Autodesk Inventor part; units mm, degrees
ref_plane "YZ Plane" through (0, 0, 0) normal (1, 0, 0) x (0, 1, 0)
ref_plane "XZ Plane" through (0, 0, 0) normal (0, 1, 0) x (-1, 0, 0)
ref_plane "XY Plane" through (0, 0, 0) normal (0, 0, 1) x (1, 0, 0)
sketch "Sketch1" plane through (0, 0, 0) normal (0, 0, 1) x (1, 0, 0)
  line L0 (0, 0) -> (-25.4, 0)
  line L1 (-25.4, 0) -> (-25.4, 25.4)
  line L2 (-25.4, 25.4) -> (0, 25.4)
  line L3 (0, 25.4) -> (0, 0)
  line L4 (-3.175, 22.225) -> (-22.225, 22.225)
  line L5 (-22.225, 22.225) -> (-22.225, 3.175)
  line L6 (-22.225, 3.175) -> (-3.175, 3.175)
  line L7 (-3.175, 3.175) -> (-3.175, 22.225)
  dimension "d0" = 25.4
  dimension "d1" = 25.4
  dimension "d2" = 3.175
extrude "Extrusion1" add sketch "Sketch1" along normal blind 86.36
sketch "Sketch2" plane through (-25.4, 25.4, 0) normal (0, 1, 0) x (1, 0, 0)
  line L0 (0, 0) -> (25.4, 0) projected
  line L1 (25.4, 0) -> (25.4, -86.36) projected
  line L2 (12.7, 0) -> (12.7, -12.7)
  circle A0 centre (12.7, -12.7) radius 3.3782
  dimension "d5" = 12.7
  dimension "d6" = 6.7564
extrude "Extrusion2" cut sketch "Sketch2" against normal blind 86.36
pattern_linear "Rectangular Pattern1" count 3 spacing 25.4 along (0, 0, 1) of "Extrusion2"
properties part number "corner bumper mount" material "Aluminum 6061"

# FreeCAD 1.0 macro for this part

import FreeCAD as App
import Part
import Sketcher

V = App.Vector
Q = App.Units.Quantity

doc = App.newDocument("Part")
body = doc.addObject("PartDesign::Body", "Body")

# Sketch on XY plane
sketch1 = doc.addObject("Sketcher::SketchObject", "Sketch")
body.addObject(sketch1)
sketch1.AttachmentSupport = (doc.XY_Plane, [""])
sketch1.MapMode = "FlatFace"
sketch1.addGeometry(Part.LineSegment(V(-25.4, 0, 0), V(0, 0, 0)), False)
sketch1.addGeometry(Part.LineSegment(V(0, 0, 0), V(0, 25.4, 0)), False)
sketch1.addGeometry(Part.LineSegment(V(0, 25.4, 0), V(-25.4, 25.4, 0)), False)
sketch1.addGeometry(Part.LineSegment(V(-25.4, 25.4, 0), V(-25.4, 0, 0)), False)
sketch1.addGeometry(Part.LineSegment(V(-22.225, 22.225, 0), V(-3.175, 22.225, 0)), False)
sketch1.addGeometry(Part.LineSegment(V(-3.175, 22.225, 0), V(-3.175, 3.175, 0)), False)
sketch1.addGeometry(Part.LineSegment(V(-3.175, 3.175, 0), V(-22.225, 3.175, 0)), False)
sketch1.addGeometry(Part.LineSegment(V(-22.225, 3.175, 0), V(-22.225, 22.225, 0)), False)
sketch1.addConstraint(Sketcher.Constraint("Coincident", 0, 2, 1, 1))
sketch1.addConstraint(Sketcher.Constraint("Coincident", 1, 2, 2, 1))
sketch1.addConstraint(Sketcher.Constraint("Coincident", 2, 2, 3, 1))
sketch1.addConstraint(Sketcher.Constraint("Coincident", 3, 2, 0, 1))
sketch1.addConstraint(Sketcher.Constraint("Coincident", 4, 2, 5, 1))
sketch1.addConstraint(Sketcher.Constraint("Coincident", 5, 2, 6, 1))
sketch1.addConstraint(Sketcher.Constraint("Coincident", 6, 2, 7, 1))
sketch1.addConstraint(Sketcher.Constraint("Coincident", 7, 2, 4, 1))
sketch1.addConstraint(Sketcher.Constraint("Horizontal", 0))
sketch1.addConstraint(Sketcher.Constraint("Vertical", 1))
sketch1.addConstraint(Sketcher.Constraint("Horizontal", 2))
sketch1.addConstraint(Sketcher.Constraint("Vertical", 3))
sketch1.addConstraint(Sketcher.Constraint("Horizontal", 4))
sketch1.addConstraint(Sketcher.Constraint("Vertical", 5))
sketch1.addConstraint(Sketcher.Constraint("Horizontal", 6))
sketch1.addConstraint(Sketcher.Constraint("Vertical", 7))
sketch1.addConstraint(Sketcher.Constraint("Coincident", 0, 2, -1, 1))
sketch1.addConstraint(Sketcher.Constraint("Equal", 2, 1))
sketch1.addConstraint(Sketcher.Constraint("Equal", 6, 5))
sketch1.addConstraint(Sketcher.Constraint("DistanceX", 0, 1, 0, 2, Q("1 in")))
sketch1.addConstraint(Sketcher.Constraint("DistanceX", 4, 2, -1, 1, Q("0.125 in")))
sketch1.addConstraint(Sketcher.Constraint("DistanceY", -1, 1, 5, 2, Q("0.125 in")))
sketch1.addConstraint(Sketcher.Constraint("DistanceY", 4, 2, 1, 2, Q("0.125 in")))
pad1 = doc.addObject("PartDesign::Pad", "Pad")
body.addObject(pad1)
pad1.Profile = sketch1
pad1.Length = Q("3.4 in")

# Sketch on XZ plane
sketch2 = doc.addObject("Sketcher::SketchObject", "Sketch001")
body.addObject(sketch2)
sketch2.AttachmentSupport = (doc.XZ_Plane, [""])
sketch2.MapMode = "FlatFace"
sketch2.AttachmentOffset = App.Placement(V(0, 0, -1 * 25.4), App.Rotation())
sketch2.addGeometry(Part.Circle(V(-12.7, 12.7, 0), V(0, 0, 1), 3.3782), False)
sketch2.addConstraint(Sketcher.Constraint("Diameter", 0, Q("0.266 in")))
sketch2.addConstraint(Sketcher.Constraint("DistanceX", 0, 3, -1, 1, Q("0.5 in")))
sketch2.addConstraint(Sketcher.Constraint("DistanceY", -1, 1, 0, 3, Q("0.5 in")))
pocket1 = doc.addObject("PartDesign::Pocket", "Pocket")
body.addObject(pocket1)
pocket1.Profile = sketch2
pocket1.Length = Q("3.4 in")
pocket1.Reversed = True
doc.recompute()

linearpattern = doc.addObject("PartDesign::LinearPattern", "LinearPattern")
body.addObject(linearpattern)
linearpattern.Originals = [pocket1]
linearpattern.Direction = (doc.Z_Axis, [""])
linearpattern.Mode = "offset"
linearpattern.Offset = Q("1 in")
linearpattern.Occurrences = 3
body.Tip = linearpattern

doc.recompute()
